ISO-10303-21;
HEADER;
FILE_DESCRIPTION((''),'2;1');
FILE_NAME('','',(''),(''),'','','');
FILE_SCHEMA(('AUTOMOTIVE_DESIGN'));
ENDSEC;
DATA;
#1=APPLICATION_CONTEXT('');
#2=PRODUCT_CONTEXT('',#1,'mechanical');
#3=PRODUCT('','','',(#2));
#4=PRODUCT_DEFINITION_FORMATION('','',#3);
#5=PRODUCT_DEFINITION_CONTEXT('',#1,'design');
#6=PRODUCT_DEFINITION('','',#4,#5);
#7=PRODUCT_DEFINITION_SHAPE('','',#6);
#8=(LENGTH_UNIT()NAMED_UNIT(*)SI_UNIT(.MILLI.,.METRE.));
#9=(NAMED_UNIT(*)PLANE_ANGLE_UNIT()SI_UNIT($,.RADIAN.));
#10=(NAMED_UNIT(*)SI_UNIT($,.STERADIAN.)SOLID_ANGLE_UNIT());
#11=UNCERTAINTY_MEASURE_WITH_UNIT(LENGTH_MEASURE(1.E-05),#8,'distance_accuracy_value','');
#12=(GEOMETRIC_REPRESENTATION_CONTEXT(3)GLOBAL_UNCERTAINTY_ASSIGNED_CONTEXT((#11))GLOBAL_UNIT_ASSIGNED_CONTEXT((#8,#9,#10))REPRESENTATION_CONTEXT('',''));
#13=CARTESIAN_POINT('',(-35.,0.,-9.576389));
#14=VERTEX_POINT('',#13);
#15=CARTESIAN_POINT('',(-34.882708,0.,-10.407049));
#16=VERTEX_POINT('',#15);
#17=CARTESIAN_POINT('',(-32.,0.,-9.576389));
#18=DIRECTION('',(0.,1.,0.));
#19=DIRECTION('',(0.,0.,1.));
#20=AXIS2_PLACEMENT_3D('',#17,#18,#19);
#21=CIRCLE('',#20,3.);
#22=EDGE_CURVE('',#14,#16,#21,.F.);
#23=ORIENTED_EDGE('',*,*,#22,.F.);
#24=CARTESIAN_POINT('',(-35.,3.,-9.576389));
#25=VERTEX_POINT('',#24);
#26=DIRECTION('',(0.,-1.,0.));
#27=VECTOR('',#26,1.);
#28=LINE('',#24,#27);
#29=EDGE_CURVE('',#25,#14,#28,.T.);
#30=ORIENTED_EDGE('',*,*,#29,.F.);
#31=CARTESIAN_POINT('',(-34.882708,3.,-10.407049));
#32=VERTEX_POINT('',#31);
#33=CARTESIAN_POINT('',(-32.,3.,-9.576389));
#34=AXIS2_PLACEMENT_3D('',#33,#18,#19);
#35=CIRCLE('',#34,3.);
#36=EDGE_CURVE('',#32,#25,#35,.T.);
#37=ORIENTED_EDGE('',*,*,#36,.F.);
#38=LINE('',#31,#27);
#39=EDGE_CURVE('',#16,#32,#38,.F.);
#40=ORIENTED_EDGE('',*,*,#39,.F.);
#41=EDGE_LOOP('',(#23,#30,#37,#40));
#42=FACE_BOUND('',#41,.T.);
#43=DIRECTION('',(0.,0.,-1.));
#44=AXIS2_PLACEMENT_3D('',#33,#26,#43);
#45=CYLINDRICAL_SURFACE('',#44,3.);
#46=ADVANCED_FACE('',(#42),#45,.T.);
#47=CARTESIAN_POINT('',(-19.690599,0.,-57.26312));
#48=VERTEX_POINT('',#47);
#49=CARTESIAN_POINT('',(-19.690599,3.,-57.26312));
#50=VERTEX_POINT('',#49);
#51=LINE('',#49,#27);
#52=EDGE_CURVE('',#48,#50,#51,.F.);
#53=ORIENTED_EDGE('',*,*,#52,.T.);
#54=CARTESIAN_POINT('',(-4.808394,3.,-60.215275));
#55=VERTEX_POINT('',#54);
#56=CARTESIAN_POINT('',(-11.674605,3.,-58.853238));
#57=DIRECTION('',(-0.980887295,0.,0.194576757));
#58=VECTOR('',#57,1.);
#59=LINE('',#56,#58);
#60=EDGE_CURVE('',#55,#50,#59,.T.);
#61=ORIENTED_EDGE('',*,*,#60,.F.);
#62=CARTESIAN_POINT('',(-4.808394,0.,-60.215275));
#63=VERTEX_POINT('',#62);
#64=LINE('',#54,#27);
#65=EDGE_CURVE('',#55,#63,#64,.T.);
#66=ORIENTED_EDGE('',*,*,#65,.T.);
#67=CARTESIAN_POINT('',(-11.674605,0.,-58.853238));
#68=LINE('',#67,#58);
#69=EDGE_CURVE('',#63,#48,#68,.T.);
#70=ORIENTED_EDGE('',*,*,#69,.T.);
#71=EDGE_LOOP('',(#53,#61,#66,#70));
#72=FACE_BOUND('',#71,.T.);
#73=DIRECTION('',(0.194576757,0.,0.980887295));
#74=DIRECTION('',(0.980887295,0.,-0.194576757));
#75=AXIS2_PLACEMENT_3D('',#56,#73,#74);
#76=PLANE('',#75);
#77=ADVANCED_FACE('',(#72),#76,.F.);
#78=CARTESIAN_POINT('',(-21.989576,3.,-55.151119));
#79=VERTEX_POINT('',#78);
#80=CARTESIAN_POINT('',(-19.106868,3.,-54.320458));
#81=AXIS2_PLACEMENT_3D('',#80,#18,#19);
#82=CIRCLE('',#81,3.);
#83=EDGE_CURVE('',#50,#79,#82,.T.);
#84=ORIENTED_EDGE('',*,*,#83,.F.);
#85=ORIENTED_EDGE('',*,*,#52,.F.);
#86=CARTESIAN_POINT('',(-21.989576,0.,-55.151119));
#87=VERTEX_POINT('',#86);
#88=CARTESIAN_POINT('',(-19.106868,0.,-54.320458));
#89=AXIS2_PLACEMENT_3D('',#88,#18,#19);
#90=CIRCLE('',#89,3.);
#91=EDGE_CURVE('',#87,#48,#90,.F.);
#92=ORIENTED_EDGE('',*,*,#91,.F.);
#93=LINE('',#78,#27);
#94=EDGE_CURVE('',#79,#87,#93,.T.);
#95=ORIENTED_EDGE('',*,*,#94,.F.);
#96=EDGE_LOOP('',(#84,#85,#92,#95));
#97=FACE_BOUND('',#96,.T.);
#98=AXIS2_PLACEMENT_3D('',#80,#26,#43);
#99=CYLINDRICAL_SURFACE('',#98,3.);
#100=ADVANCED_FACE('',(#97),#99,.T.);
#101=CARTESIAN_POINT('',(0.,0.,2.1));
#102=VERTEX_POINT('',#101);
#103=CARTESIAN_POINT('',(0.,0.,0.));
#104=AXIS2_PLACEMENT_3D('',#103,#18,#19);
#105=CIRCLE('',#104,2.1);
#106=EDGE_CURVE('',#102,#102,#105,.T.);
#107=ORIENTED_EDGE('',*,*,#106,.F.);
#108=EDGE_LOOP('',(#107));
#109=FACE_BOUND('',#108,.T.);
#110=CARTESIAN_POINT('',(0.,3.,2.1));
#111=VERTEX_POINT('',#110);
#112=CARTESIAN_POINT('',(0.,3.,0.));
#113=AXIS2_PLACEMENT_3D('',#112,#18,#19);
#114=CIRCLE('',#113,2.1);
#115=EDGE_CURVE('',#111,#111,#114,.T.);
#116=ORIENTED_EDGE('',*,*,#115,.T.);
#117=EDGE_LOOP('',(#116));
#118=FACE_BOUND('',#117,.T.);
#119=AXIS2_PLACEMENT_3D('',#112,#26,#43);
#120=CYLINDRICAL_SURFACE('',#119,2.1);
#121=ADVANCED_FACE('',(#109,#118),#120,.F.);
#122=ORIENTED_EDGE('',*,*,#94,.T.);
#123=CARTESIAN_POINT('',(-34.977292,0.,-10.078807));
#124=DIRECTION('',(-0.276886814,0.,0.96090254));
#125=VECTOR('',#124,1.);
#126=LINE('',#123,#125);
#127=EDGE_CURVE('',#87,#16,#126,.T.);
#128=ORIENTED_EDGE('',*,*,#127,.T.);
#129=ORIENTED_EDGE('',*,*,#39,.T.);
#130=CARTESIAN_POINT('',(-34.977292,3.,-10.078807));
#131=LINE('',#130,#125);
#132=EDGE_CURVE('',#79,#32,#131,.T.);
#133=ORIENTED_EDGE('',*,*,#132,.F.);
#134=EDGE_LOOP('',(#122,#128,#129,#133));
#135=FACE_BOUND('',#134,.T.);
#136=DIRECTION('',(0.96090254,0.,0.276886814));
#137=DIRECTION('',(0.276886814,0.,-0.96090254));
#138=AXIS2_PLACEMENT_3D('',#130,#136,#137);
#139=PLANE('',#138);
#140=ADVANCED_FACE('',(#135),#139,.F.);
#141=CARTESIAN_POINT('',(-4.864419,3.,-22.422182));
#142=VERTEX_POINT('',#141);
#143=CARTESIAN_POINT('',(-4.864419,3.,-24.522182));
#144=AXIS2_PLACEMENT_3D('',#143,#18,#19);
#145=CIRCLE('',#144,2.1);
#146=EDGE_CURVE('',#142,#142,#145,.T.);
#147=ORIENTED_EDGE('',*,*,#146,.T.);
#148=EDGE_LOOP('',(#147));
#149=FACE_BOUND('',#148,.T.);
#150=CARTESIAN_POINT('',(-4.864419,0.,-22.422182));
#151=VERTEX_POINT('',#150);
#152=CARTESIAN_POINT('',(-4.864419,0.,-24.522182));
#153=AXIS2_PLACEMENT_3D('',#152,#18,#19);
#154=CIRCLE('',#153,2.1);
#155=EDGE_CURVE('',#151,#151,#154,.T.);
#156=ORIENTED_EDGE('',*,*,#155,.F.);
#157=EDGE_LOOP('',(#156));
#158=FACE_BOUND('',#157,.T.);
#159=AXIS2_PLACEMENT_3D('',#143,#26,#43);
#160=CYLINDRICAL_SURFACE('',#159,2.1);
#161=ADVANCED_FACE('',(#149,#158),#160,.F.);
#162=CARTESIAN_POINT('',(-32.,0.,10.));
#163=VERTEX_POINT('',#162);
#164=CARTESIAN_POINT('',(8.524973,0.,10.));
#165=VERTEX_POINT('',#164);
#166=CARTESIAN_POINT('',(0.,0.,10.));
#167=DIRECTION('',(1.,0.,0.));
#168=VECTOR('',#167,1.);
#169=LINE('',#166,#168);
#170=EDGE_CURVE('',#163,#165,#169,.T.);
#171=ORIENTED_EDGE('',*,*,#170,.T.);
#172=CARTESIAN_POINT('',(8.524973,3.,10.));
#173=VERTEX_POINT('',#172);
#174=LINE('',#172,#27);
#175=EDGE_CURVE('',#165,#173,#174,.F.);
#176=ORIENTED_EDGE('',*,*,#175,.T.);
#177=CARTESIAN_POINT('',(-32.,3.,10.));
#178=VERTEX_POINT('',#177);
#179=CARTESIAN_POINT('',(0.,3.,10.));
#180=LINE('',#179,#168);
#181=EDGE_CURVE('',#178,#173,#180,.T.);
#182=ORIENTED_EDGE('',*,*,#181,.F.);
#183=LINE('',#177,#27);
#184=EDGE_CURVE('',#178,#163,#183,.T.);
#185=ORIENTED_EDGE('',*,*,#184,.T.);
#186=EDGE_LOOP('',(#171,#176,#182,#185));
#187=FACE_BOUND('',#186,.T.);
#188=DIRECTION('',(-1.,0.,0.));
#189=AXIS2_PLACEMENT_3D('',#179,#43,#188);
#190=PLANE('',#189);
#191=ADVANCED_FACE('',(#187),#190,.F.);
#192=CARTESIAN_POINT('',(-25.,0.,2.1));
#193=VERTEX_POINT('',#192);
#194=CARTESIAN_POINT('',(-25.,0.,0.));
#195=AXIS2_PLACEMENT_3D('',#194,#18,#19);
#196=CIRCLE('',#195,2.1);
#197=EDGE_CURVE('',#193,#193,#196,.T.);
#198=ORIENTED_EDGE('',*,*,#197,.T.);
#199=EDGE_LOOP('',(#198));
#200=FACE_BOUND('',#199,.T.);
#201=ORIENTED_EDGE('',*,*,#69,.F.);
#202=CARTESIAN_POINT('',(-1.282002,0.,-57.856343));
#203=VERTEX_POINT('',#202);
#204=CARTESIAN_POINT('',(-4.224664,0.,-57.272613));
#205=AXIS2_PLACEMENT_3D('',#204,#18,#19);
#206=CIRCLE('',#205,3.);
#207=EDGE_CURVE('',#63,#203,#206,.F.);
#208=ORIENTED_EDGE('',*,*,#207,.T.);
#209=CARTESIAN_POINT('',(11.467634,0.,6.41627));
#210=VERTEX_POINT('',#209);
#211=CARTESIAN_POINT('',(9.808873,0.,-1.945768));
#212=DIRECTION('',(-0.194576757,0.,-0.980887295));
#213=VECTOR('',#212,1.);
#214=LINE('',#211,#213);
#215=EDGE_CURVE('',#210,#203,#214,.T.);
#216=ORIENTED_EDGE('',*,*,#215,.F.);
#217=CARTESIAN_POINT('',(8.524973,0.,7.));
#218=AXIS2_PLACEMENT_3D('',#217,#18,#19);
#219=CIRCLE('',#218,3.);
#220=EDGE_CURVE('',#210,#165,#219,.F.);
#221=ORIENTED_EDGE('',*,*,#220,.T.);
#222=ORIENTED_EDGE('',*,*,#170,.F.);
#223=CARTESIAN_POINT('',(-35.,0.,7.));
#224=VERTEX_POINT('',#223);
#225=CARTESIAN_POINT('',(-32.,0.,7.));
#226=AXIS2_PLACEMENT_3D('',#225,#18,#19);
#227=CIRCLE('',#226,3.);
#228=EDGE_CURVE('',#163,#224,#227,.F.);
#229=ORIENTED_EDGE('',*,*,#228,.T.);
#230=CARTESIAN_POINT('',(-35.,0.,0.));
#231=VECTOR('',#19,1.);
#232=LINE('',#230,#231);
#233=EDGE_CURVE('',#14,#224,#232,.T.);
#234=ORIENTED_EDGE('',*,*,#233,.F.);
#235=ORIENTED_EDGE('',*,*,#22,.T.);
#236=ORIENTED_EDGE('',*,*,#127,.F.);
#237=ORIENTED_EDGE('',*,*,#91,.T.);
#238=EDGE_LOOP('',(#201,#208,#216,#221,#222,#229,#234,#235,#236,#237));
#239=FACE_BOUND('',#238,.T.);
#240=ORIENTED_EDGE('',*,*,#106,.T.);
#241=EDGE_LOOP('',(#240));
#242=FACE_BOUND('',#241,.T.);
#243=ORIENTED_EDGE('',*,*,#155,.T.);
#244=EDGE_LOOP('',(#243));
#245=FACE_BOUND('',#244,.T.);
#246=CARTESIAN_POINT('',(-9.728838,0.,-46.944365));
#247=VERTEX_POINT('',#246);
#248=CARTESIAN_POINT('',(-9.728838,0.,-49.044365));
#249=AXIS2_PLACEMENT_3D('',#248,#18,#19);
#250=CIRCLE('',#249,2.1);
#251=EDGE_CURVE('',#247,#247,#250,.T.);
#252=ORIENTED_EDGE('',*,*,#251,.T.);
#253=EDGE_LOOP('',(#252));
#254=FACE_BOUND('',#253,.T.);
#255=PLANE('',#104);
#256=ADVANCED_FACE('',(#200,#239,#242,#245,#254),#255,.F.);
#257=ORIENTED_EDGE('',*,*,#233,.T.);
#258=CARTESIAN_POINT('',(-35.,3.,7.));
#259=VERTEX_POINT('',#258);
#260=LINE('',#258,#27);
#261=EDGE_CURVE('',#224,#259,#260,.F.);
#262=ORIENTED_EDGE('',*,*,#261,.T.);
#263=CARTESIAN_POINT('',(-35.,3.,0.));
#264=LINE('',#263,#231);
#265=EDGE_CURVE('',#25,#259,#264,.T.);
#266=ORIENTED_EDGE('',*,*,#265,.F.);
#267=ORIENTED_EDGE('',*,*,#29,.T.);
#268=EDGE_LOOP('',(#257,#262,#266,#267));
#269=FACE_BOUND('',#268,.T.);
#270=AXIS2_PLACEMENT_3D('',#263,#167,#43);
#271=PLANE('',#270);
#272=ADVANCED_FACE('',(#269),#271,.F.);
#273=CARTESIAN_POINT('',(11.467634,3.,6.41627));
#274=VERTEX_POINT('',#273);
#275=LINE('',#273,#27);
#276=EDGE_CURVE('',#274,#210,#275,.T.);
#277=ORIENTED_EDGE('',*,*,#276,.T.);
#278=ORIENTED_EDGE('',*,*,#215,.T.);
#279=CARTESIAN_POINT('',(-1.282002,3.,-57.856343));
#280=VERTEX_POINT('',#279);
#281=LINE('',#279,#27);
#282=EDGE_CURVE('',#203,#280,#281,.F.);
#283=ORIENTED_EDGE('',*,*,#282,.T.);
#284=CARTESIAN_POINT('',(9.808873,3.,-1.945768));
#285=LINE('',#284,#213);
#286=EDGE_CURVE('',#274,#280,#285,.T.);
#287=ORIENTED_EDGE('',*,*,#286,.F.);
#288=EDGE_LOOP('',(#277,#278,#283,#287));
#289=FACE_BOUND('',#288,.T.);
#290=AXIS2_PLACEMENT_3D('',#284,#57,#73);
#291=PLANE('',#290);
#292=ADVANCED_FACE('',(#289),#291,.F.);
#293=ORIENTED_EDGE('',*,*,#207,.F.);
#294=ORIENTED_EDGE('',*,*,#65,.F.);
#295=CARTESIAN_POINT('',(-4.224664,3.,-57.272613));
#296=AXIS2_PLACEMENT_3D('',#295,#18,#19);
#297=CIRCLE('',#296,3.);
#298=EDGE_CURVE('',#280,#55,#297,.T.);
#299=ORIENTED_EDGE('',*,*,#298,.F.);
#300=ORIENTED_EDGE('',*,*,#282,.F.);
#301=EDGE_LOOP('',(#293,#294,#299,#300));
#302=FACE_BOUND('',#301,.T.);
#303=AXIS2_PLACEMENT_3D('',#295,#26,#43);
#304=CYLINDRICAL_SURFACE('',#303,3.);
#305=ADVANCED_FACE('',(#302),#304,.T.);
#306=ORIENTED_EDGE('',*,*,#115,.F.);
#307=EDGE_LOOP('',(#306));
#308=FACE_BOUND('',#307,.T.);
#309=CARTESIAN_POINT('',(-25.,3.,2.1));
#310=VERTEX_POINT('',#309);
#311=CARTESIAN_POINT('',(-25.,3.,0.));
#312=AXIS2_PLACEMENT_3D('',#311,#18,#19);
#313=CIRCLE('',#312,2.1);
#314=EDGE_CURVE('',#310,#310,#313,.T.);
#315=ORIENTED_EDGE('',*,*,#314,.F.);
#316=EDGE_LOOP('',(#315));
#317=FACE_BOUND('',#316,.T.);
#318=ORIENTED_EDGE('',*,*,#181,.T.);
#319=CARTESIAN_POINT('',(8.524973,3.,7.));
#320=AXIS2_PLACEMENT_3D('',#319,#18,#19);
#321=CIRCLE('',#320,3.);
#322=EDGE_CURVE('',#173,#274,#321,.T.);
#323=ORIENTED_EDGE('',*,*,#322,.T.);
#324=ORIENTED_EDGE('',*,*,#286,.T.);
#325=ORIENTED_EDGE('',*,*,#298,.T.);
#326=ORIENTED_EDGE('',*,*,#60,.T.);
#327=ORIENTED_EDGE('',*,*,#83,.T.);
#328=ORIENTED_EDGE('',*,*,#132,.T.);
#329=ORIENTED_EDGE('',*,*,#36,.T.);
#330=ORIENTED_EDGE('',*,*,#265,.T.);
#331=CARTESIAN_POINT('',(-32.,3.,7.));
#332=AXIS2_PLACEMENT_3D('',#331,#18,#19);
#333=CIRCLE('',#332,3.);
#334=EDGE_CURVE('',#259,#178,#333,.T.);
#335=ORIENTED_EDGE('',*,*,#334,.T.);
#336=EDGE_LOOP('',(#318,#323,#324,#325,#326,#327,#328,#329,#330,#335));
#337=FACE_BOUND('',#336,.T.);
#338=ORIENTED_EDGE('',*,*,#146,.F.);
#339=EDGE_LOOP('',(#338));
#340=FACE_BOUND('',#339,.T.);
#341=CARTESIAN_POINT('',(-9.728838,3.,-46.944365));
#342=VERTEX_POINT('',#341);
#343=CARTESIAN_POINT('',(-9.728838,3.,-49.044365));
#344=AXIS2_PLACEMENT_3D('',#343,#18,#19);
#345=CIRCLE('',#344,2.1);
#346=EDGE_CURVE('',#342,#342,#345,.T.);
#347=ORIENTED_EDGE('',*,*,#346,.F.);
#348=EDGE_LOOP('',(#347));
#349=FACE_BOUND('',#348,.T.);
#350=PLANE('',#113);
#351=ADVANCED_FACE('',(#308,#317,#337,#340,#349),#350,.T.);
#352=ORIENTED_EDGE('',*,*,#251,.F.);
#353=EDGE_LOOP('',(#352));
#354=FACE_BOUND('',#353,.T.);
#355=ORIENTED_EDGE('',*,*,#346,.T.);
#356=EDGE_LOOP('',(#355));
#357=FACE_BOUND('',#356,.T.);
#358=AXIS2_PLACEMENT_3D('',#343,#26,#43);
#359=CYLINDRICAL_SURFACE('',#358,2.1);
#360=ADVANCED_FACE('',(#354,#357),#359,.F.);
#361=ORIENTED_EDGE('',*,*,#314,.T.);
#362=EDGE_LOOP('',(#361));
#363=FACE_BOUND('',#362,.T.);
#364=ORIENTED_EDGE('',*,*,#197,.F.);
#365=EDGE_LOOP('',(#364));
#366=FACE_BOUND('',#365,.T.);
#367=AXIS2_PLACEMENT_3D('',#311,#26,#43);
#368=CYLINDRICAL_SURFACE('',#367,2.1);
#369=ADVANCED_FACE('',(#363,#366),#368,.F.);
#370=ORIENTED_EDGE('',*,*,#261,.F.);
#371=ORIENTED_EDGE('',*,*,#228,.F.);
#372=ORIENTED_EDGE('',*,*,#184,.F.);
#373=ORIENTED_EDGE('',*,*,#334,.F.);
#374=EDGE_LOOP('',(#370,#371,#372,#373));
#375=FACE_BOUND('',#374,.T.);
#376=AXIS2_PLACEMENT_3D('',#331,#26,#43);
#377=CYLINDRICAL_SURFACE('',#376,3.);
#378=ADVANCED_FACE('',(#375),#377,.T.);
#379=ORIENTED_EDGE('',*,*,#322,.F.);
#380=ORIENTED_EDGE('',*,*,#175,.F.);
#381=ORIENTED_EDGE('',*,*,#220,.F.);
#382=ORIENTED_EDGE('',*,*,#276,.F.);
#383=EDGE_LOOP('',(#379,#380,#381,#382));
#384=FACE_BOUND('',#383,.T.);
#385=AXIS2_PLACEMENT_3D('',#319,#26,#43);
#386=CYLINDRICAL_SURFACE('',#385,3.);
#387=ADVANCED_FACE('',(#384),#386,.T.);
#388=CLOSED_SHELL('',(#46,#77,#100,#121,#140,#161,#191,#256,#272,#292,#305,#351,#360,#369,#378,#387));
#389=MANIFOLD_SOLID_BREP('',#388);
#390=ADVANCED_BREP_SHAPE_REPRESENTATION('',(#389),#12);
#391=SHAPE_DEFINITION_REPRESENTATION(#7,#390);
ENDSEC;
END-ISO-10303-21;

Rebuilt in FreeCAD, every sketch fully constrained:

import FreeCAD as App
import Part
import Sketcher

V = App.Vector
Q = App.Units.Quantity


def edges_at(feature, points):
    """Names of the edges that pass closest to the given points."""
    edges = feature.Shape.Edges
    near = lambda p: min(range(len(edges)), key=lambda i: edges[i].distToShape(Part.Vertex(*p))[0])
    return sorted({f"Edge{near(p) + 1}" for p in points})


def add_polygon(sketch, points):
    """Adds a closed chain of lines whose ends are joined by coincident constraints."""
    first, n = sketch.GeometryCount, len(points)
    for a, b in zip(points, points[1:] + points[:1]):
        sketch.addGeometry(Part.LineSegment(App.Vector(*a, 0), App.Vector(*b, 0)), False)
    for i in range(n):
        sketch.addConstraint(Sketcher.Constraint("Coincident", first + i, 2, first + (i + 1) % n, 1))

doc = App.newDocument("Part")
body = doc.addObject("PartDesign::Body", "Body")

# Sketch on XZ plane
sketch1 = body.newObject("Sketcher::SketchObject", "Sketch")
sketch1.AttachmentSupport = (doc.getObject("XZ_Plane"), [""])
sketch1.MapMode = "FlatFace"
add_polygon(sketch1, [(8.2, -10), (-1.9, -60.8), (-21.5, -56.9), (-35, -10), (-35, 10), (12.2, 10)])  # lines 0-5
sketch1.addGeometry(Part.Circle(V(-4.9, -24.5, 0), V(0, 0, 1), 2.1), False)  # 6
sketch1.addGeometry(Part.Circle(V(-9.7, -49, 0), V(0, 0, 1), 2.1), False)  # 7
sketch1.addGeometry(Part.Circle(V(0, 0, 0), V(0, 0, 1), 2.1), False)  # 8
sketch1.addGeometry(Part.Circle(V(-25, 0, 0), V(0, 0, 1), 2.1), False)  # 9
sketch1.addConstraint(Sketcher.Constraint("Vertical", 3))
sketch1.addConstraint(Sketcher.Constraint("Horizontal", 4))
sketch1.addConstraint(Sketcher.Constraint("Coincident", 8, 3, -1, 1))
sketch1.addConstraint(Sketcher.Constraint("Equal", 6, 7))
sketch1.addConstraint(Sketcher.Constraint("Equal", 7, 8))
sketch1.addConstraint(Sketcher.Constraint("Equal", 8, 9))
sketch1.addConstraint(Sketcher.Constraint("PointOnObject", 9, 3, -1))
sketch1.addConstraint(Sketcher.Constraint("Perpendicular", 0, 1))
sketch1.addConstraint(Sketcher.Constraint("Perpendicular", 1, 5))
sketch1.addConstraint(Sketcher.Constraint("Horizontal", 2, 2, 5, 2))
sketch1.addConstraint(Sketcher.Constraint("Diameter", 6, Q("4.2 mm")))
sketch1.addConstraint(Sketcher.Constraint("DistanceY", 3, 1, 3, 2, Q("20 mm")))
sketch1.addConstraint(Sketcher.Constraint("Distance", 1, Q("20 mm")))
sketch1.addConstraint(Sketcher.Constraint("DistanceX", 9, 3, -1, 1, Q("25 mm")))
sketch1.addConstraint(Sketcher.Constraint("DistanceX", 2, 2, -1, 1, Q("35 mm")))
sketch1.addConstraint(Sketcher.Constraint("DistanceY", 2, 2, -1, 1, Q("10 mm")))
sketch1.addConstraint(Sketcher.Constraint("Angle", 0, Q("-101.22 deg")))
sketch1.addConstraint(Sketcher.Constraint("Distance", 0, Q("51.78883 mm")))
sketch1.addConstraint(Sketcher.Constraint("DistanceX", 4, 1, 4, 2, Q("47.178532 mm")))
sketch1.addConstraint(Sketcher.Constraint("DistanceX", 6, 3, -1, 1, Q("4.864419 mm")))
sketch1.addConstraint(Sketcher.Constraint("DistanceX", 7, 3, 6, 3, Q("4.864419 mm")))
sketch1.addConstraint(Sketcher.Constraint("DistanceY", 0, 2, 7, 3, Q("11.754641 mm")))
sketch1.addConstraint(Sketcher.Constraint("DistanceY", 6, 3, -1, 1, Q("24.522182 mm")))
pad1 = body.newObject("PartDesign::Pad", "Pad")
pad1.Profile = sketch1
pad1.Length = 3
pad1.Reversed = True
doc.recompute()

fillet = body.newObject("PartDesign::Fillet", "Fillet")
fillet.Base = (pad1, edges_at(pad1, [
    (12.179, 1.5, 10),
    (-35, 1.5, 10),
    (-35, 1.5, -10),
    (-21.483, 1.5, -56.907),
    (-1.866, 1.5, -60.799),
]))
fillet.Radius = 3

doc.recompute()
